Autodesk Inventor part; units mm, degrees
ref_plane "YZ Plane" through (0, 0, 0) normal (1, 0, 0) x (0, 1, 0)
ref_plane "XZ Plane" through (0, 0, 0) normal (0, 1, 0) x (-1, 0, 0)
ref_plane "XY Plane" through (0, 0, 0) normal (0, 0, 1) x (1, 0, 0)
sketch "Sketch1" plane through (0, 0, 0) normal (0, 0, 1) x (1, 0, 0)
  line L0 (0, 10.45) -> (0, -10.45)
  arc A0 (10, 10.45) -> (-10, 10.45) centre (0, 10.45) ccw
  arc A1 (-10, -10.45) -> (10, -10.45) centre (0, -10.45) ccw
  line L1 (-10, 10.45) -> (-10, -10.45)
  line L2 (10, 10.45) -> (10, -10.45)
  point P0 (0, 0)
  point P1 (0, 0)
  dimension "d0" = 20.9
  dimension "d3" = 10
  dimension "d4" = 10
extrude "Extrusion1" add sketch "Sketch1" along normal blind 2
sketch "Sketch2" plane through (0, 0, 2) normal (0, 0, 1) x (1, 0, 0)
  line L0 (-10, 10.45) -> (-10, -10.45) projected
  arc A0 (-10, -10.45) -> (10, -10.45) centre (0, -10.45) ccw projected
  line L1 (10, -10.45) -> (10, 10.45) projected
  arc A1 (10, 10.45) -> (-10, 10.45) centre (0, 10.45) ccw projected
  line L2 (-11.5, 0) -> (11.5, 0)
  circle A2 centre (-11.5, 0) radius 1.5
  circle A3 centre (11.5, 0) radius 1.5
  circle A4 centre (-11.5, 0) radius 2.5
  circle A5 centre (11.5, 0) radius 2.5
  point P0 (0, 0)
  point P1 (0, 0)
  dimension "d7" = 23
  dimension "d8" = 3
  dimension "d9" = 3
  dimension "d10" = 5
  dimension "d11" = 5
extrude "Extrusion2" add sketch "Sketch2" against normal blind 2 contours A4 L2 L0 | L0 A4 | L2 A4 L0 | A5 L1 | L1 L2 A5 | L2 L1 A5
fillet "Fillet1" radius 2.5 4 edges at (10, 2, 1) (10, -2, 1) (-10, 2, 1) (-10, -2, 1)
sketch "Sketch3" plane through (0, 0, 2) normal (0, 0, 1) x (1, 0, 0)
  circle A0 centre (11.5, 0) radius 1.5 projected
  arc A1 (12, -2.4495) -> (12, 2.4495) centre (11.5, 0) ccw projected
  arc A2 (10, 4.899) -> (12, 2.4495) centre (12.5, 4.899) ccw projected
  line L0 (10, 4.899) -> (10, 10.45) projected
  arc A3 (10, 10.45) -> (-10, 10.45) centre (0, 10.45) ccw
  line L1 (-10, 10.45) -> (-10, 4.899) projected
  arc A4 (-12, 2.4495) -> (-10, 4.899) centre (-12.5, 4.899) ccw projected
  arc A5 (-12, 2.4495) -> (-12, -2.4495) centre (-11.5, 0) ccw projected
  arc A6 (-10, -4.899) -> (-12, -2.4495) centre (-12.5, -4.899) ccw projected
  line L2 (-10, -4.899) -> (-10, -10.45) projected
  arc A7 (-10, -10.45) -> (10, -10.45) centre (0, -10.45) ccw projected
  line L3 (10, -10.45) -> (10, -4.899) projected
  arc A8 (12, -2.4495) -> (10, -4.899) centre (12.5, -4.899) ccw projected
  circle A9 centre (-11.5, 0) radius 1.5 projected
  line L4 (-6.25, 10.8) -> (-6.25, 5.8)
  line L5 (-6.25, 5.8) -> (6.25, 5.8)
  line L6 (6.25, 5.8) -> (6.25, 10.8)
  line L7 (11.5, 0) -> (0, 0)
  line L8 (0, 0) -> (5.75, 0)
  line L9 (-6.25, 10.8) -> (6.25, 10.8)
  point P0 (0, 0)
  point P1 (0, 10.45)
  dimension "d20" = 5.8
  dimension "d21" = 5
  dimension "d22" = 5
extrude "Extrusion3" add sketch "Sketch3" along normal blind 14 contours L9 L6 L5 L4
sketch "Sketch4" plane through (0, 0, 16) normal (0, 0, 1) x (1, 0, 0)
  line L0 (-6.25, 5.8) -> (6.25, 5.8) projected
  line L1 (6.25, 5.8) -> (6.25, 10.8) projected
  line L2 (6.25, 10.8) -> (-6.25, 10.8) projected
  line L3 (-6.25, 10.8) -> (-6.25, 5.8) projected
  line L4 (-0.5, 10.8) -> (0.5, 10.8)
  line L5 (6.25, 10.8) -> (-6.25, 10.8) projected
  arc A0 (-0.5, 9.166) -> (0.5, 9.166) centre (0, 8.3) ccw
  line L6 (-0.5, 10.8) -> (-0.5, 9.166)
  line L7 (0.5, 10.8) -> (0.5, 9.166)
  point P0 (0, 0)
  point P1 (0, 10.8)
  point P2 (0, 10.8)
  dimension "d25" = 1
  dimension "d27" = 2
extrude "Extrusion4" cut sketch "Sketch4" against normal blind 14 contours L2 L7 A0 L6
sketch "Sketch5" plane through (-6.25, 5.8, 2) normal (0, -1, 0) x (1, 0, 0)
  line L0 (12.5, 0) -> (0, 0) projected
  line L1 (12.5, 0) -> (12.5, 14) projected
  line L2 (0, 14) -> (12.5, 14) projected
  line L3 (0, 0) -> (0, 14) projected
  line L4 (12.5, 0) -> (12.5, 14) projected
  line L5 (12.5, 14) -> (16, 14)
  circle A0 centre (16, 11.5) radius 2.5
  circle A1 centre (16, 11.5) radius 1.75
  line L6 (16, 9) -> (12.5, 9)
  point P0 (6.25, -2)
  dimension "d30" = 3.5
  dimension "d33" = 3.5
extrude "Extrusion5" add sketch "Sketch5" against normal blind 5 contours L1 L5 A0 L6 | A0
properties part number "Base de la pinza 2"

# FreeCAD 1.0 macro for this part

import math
import FreeCAD as App
import Part
import Sketcher

V = App.Vector


def edges_at(feature, points):
    """Names of the edges that pass closest to the given points."""
    edges = feature.Shape.Edges
    near = lambda p: min(range(len(edges)), key=lambda i: edges[i].distToShape(Part.Vertex(*p))[0])
    return sorted({f"Edge{near(p) + 1}" for p in points})


def add_polygon(sketch, points):
    """Adds a closed chain of lines whose ends are joined by coincident constraints."""
    first, n = sketch.GeometryCount, len(points)
    for a, b in zip(points, points[1:] + points[:1]):
        sketch.addGeometry(Part.LineSegment(App.Vector(*a, 0), App.Vector(*b, 0)), False)
    for i in range(n):
        sketch.addConstraint(Sketcher.Constraint("Coincident", first + i, 2, first + (i + 1) % n, 1))

doc = App.newDocument("Part")
params = doc.addObject("Spreadsheet::Sheet", "Params")
for row, (alias, value) in enumerate([
    ("sketch1_radius", "10 mm"),
    ("sketch1_height", "20.9 mm"),
    ("pad1_length", "2 mm"),
    ("sketch2_diameter", "5 mm"),
    ("sketch2_diameter2", "3 mm"),
    ("pad2_length", "2 mm"),
    ("fillet_radius", "2.5 mm"),
    ("sketch3_height", "5 mm"),
    ("sketch3_width", "12.5 mm"),
    ("pad3_length", "14 mm"),
    ("sketch4_radius", "1 mm"),
    ("sketch4_width", "1 mm"),
    ("pocket1_length", "14 mm"),
    ("sketch5_diameter", "3.5 mm"),
    ("sketch5_width", "3.5 mm"),
    ("sketch5_radius", "2.5 mm"),
    ("pad4_length", "5 mm"),
], start=1):
    params.set(f"A{row}", alias)
    params.set(f"B{row}", "=" + value)
    params.setAlias(f"B{row}", alias)

body = doc.addObject("PartDesign::Body", "Body")

# Sketch on XY plane
sketch1 = doc.addObject("Sketcher::SketchObject", "Sketch")
body.addObject(sketch1)
sketch1.AttachmentSupport = (doc.XY_Plane, [""])
sketch1.MapMode = "FlatFace"
sketch1.addGeometry([
    Part.LineSegment(V(10, -10.45, 0), V(10, 10.45, 0)),
    Part.ArcOfCircle(Part.Circle(V(0, 10.45, 0), V(0, 0, 1), 10), math.radians(0), math.radians(180)),
    Part.LineSegment(V(-10, 10.45, 0), V(-10, -10.45, 0)),
    Part.ArcOfCircle(Part.Circle(V(0, -10.45, 0), V(0, 0, 1), 10), math.radians(180), math.radians(360)),
], False)
sketch1.addConstraint([
    Sketcher.Constraint("Tangent", 0, 2, 1, 1),
    Sketcher.Constraint("Tangent", 1, 2, 2, 1),
    Sketcher.Constraint("Tangent", 2, 2, 3, 1),
    Sketcher.Constraint("Tangent", 3, 2, 0, 1),
    Sketcher.Constraint("Vertical", 0),
    Sketcher.Constraint("Vertical", 2),
    Sketcher.Constraint("Symmetric", 1, 3, 3, 3, -1, 1),
    Sketcher.Constraint("Radius", 1, 10.0),
    Sketcher.Constraint("DistanceY", 0, 1, 0, 2, 20.9),
])
sketch1.setExpression("Constraints[7]", "Params.sketch1_radius")
sketch1.setExpression("Constraints[8]", "Params.sketch1_height")
pad1 = doc.addObject("PartDesign::Pad", "Pad")
body.addObject(pad1)
pad1.Profile = sketch1
pad1.setExpression("Length", "Params.pad1_length")

# Sketch on XY plane
sketch2 = doc.addObject("Sketcher::SketchObject", "Sketch001")
body.addObject(sketch2)
sketch2.AttachmentSupport = (doc.XY_Plane, [""])
sketch2.MapMode = "FlatFace"
sketch2.AttachmentOffset = App.Placement(V(0, 0, 2), App.Rotation())
sketch2.addGeometry([
    Part.Circle(V(-11.5, 0, 0), V(0, 0, 1), 2.5),
    Part.Circle(V(-11.5, 0, 0), V(0, 0, 1), 1.5),
    Part.Circle(V(11.5, 0, 0), V(0, 0, 1), 2.5),
    Part.Circle(V(11.5, 0, 0), V(0, 0, 1), 1.5),
], False)
sketch2.addConstraint([
    Sketcher.Constraint("Coincident", 1, 3, 0, 3),
    Sketcher.Constraint("Coincident", 3, 3, 2, 3),
    Sketcher.Constraint("Equal", 0, 2),
    Sketcher.Constraint("Equal", 1, 3),
    Sketcher.Constraint("Symmetric", 0, 3, 2, 3, -1, 1),
    Sketcher.Constraint("PointOnObject", 0, 3, -1),
    Sketcher.Constraint("Diameter", 0, 5.0),
    Sketcher.Constraint("Diameter", 1, 3.0),
    Sketcher.Constraint("DistanceX", 0, 3, 2, 3, 23.0),
])
sketch2.setExpression("Constraints[6]", "Params.sketch2_diameter")
sketch2.setExpression("Constraints[7]", "Params.sketch2_diameter2")
pad2 = doc.addObject("PartDesign::Pad", "Pad001")
body.addObject(pad2)
pad2.Profile = sketch2
pad2.setExpression("Length", "Params.pad2_length")
pad2.Reversed = True
doc.recompute()

fillet = doc.addObject("PartDesign::Fillet", "Fillet")
body.addObject(fillet)
fillet.Base = (pad2, edges_at(pad2, [
    (10, 2, 1),
    (10, -2, 1),
    (-10, 2, 1),
    (-10, -2, 1),
]))
fillet.setExpression("Radius", "Params.fillet_radius")

# Sketch on XY plane
sketch3 = doc.addObject("Sketcher::SketchObject", "Sketch002")
body.addObject(sketch3)
sketch3.AttachmentSupport = (doc.XY_Plane, [""])
sketch3.MapMode = "FlatFace"
sketch3.AttachmentOffset = App.Placement(V(0, 0, 2), App.Rotation())
add_polygon(sketch3, [(6.25, 10.8), (-6.25, 10.8), (-6.25, 5.8), (6.25, 5.8)])  # lines 0-3
sketch3.addConstraint([
    Sketcher.Constraint("Horizontal", 0),
    Sketcher.Constraint("Vertical", 1),
    Sketcher.Constraint("Horizontal", 2),
    Sketcher.Constraint("Vertical", 3),
    Sketcher.Constraint("DistanceY", 1, 2, 1, 1, 5.0),
    Sketcher.Constraint("DistanceY", -1, 1, 1, 2, 5.8),
    Sketcher.Constraint("DistanceX", 0, 2, 0, 1, 12.5),
    Sketcher.Constraint("DistanceX", 0, 2, -1, 1, 6.25),
])
sketch3.setExpression("Constraints[8]", "Params.sketch3_height")
sketch3.setExpression("Constraints[10]", "Params.sketch3_width")
pad3 = doc.addObject("PartDesign::Pad", "Pad002")
body.addObject(pad3)
pad3.Profile = sketch3
pad3.setExpression("Length", "Params.pad3_length")

# Sketch on XY plane
sketch4 = doc.addObject("Sketcher::SketchObject", "Sketch003")
body.addObject(sketch4)
sketch4.AttachmentSupport = (doc.XY_Plane, [""])
sketch4.MapMode = "FlatFace"
sketch4.AttachmentOffset = App.Placement(V(0, 0, 16), App.Rotation())
sketch4.addGeometry([
    Part.LineSegment(V(0.5, 10.8, 0), V(-0.5, 10.8, 0)),
    Part.LineSegment(V(-0.5, 10.8, 0), V(-0.5, 9.166, 0)),
    Part.ArcOfCircle(Part.Circle(V(0, 8.3, 0), V(0, 0, 1), 0.999978), math.radians(120.000728), math.radians(419.999272)),
    Part.LineSegment(V(0.5, 9.166, 0), V(0.5, 10.8, 0)),
], False)
sketch4.addConstraint([
    Sketcher.Constraint("Coincident", 0, 2, 1, 1),
    Sketcher.Constraint("Coincident", 1, 2, 2, 1),
    Sketcher.Constraint("Coincident", 2, 2, 3, 1),
    Sketcher.Constraint("Coincident", 3, 2, 0, 1),
    Sketcher.Constraint("Horizontal", 0),
    Sketcher.Constraint("Vertical", 1),
    Sketcher.Constraint("Vertical", 3),
    Sketcher.Constraint("Symmetric", 1, 2, 2, 2, -2),
    Sketcher.Constraint("Radius", 2, 1.0),
    Sketcher.Constraint("DistanceX", 0, 2, 0, 1, 1.0),
    Sketcher.Constraint("DistanceY", -1, 1, 2, 3, 8.3),
    Sketcher.Constraint("DistanceY", -1, 1, 0, 2, 10.8),
])
sketch4.setExpression("Constraints[8]", "Params.sketch4_radius")
sketch4.setExpression("Constraints[9]", "Params.sketch4_width")
pocket1 = doc.addObject("PartDesign::Pocket", "Pocket")
body.addObject(pocket1)
pocket1.Profile = sketch4
pocket1.setExpression("Length", "Params.pocket1_length")

# Sketch on XZ plane
sketch5 = doc.addObject("Sketcher::SketchObject", "Sketch004")
body.addObject(sketch5)
sketch5.AttachmentSupport = (doc.XZ_Plane, [""])
sketch5.MapMode = "FlatFace"
sketch5.AttachmentOffset = App.Placement(V(0, 0, -5.8), App.Rotation())
sketch5.addGeometry([
    Part.LineSegment(V(6.25, 16, 0), V(6.25, 11, 0)),  # 0
    Part.LineSegment(V(6.25, 11, 0), V(9.75, 11, 0)),  # 1
    Part.ArcOfCircle(Part.Circle(V(9.75, 13.5, 0), V(0, 0, 1), 2.5), math.radians(-90), math.radians(90)),  # 2
    Part.LineSegment(V(9.75, 16, 0), V(6.25, 16, 0)),  # 3
    Part.Circle(V(9.75, 13.5, 0), V(0, 0, 1), 1.75),  # 4
], False)
sketch5.addConstraint([
    Sketcher.Constraint("Coincident", 0, 2, 1, 1),
    Sketcher.Constraint("Tangent", 1, 2, 2, 1),
    Sketcher.Constraint("Tangent", 2, 2, 3, 1),
    Sketcher.Constraint("Coincident", 3, 2, 0, 1),
    Sketcher.Constraint("Vertical", 0),
    Sketcher.Constraint("Horizontal", 1),
    Sketcher.Constraint("Horizontal", 3),
    Sketcher.Constraint("Coincident", 4, 3, 2, 3),
    Sketcher.Constraint("Diameter", 4, 3.5),
    Sketcher.Constraint("DistanceX", 1, 1, 1, 2, 3.5),
    Sketcher.Constraint("Radius", 2, 2.5),
    Sketcher.Constraint("DistanceY", -1, 1, 0, 2, 11.0),
    Sketcher.Constraint("DistanceX", -1, 1, 2, 3, 9.75),
])
sketch5.setExpression("Constraints[8]", "Params.sketch5_diameter")
sketch5.setExpression("Constraints[9]", "Params.sketch5_width")
sketch5.setExpression("Constraints[10]", "Params.sketch5_radius")
pad4 = doc.addObject("PartDesign::Pad", "Pad003")
body.addObject(pad4)
pad4.Profile = sketch5
pad4.setExpression("Length", "Params.pad4_length")
pad4.Reversed = True

doc.recompute()
